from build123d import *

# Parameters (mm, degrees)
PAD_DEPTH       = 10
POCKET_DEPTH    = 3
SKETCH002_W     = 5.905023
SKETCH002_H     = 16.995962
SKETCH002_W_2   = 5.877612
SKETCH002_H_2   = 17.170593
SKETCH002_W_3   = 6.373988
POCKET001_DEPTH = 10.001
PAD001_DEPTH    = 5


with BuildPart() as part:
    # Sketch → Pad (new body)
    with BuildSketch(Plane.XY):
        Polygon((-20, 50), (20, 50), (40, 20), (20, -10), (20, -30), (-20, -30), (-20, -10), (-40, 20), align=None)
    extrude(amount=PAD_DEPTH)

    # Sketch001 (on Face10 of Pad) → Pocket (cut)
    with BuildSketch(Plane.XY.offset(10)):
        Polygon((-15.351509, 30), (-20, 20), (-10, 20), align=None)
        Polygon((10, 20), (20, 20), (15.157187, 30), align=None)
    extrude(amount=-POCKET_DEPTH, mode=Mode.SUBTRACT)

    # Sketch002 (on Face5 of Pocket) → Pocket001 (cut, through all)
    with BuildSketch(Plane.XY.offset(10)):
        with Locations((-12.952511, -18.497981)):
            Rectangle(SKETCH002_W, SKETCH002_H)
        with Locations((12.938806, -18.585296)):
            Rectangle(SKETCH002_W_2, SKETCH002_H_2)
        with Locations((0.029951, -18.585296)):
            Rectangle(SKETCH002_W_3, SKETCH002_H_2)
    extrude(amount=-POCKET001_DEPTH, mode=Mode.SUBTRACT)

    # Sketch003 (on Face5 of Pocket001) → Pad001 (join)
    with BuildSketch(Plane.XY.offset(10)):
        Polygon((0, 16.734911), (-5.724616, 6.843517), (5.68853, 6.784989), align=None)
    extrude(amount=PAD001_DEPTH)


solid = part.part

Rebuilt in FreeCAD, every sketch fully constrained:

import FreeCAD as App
import Part
import Sketcher

V = App.Vector
Q = App.Units.Quantity


def add_polygon(sketch, points):
    """Adds a closed chain of lines whose ends are joined by coincident constraints."""
    first, n = sketch.GeometryCount, len(points)
    for a, b in zip(points, points[1:] + points[:1]):
        sketch.addGeometry(Part.LineSegment(App.Vector(*a, 0), App.Vector(*b, 0)), False)
    for i in range(n):
        sketch.addConstraint(Sketcher.Constraint("Coincident", first + i, 2, first + (i + 1) % n, 1))

doc = App.newDocument("Part")
body = doc.addObject("PartDesign::Body", "Body")

sketch1 = doc.addObject("Sketcher::SketchObject", "Sketch")
body.addObject(sketch1)
sketch1.AttachmentSupport = (doc.XY_Plane, [""])
sketch1.MapMode = "FlatFace"
add_polygon(sketch1, [(20, 50), (-20, 50), (-40, 20), (-20, -10), (-20, -30), (20, -30), (20, -10), (40, 20)])
sketch1.addConstraint([
    Sketcher.Constraint("Horizontal", 0),
    Sketcher.Constraint("Vertical", 3),
    Sketcher.Constraint("Horizontal", 4),
    Sketcher.Constraint("Vertical", 5),
    Sketcher.Constraint("Symmetric", 2, 2, 5, 2, -2),
    Sketcher.Constraint("Symmetric", 1, 2, 6, 2, -2),
    Sketcher.Constraint("Parallel", 1, 6),
    Sketcher.Constraint("Parallel", 2, 7),
    Sketcher.Constraint("Vertical", 0, 2, 2, 2),
    Sketcher.Constraint("DistanceX", 0, 2, 0, 1, Q("40 mm")),
    Sketcher.Constraint("DistanceY", 3, 2, 3, 1, Q("20 mm")),
    Sketcher.Constraint("DistanceY", -1, 1, 0, 2, Q("50 mm")),
    Sketcher.Constraint("DistanceX", 1, 2, -1, 1, Q("40 mm")),
    Sketcher.Constraint("DistanceY", -1, 1, 1, 2, Q("20 mm")),
])
pad1 = doc.addObject("PartDesign::Pad", "Pad")
body.addObject(pad1)
pad1.Profile = sketch1
pad1.Length = 10

sketch2 = doc.addObject("Sketcher::SketchObject", "Sketch001")
body.addObject(sketch2)
sketch2.AttachmentSupport = (doc.XY_Plane, [""])
sketch2.MapMode = "FlatFace"
sketch2.AttachmentOffset = App.Placement(V(0, 0, 10), App.Rotation())
add_polygon(sketch2, [(-15, 30), (-20, 20), (-10, 20)])
add_polygon(sketch2, [(10, 20), (20, 20), (15, 30)])
sketch2.addConstraint([
    Sketcher.Constraint("Horizontal", 1),
    Sketcher.Constraint("Horizontal", 3),
    Sketcher.Constraint("Symmetric", 0, 2, 3, 2, -2),
    Sketcher.Constraint("Horizontal", 2, 2, 4, 2),
    Sketcher.Constraint("Equal", 1, 3),
    Sketcher.Constraint("DistanceX", 1, 1, 1, 2, Q("10 mm")),
    Sketcher.Constraint("DistanceX", 0, 2, -1, 1, Q("20 mm")),
    Sketcher.Constraint("DistanceY", -1, 1, 0, 2, Q("20 mm")),
    Sketcher.Constraint("DistanceY", -1, 1, 2, 2, Q("30 mm")),
    Sketcher.Constraint("DistanceX", 2, 2, -1, 1, Q("15.351509 mm")),
    Sketcher.Constraint("Distance", 4, Q("11.110933 mm")),
])
pocket1 = doc.addObject("PartDesign::Pocket", "Pocket")
body.addObject(pocket1)
pocket1.Profile = sketch2
pocket1.Length = 3

sketch3 = doc.addObject("Sketcher::SketchObject", "Sketch002")
body.addObject(sketch3)
sketch3.AttachmentSupport = (doc.XY_Plane, [""])
sketch3.MapMode = "FlatFace"
sketch3.AttachmentOffset = App.Placement(V(0, 0, 10), App.Rotation())
add_polygon(sketch3, [(-16, -10), (-16, -27), (-10, -27), (-10, -10)])
add_polygon(sketch3, [(10, -10), (10, -27), (16, -27), (16, -10)])
add_polygon(sketch3, [(-3, -10), (-3, -27), (3, -27), (3, -10)])
sketch3.addConstraint([
    Sketcher.Constraint("Vertical", 0),
    Sketcher.Constraint("Horizontal", 1),
    Sketcher.Constraint("Vertical", 2),
    Sketcher.Constraint("Horizontal", 3),
    Sketcher.Constraint("Vertical", 4),
    Sketcher.Constraint("Horizontal", 5),
    Sketcher.Constraint("Vertical", 6),
    Sketcher.Constraint("Horizontal", 7),
    Sketcher.Constraint("Vertical", 8),
    Sketcher.Constraint("Horizontal", 9),
    Sketcher.Constraint("Vertical", 10),
    Sketcher.Constraint("Horizontal", 11),
    Sketcher.Constraint("Symmetric", 2, 2, 7, 2, -2),
    Sketcher.Constraint("Horizontal", 5, 2, 8, 2),
    Sketcher.Constraint("Horizontal", 7, 2, 10, 2),
    Sketcher.Constraint("DistanceX", 1, 2, -1, 1, Q("9.999999 mm")),
    Sketcher.Constraint("DistanceY", 2, 2, -1, 1, Q("10 mm")),
    Sketcher.Constraint("DistanceX", 5, 1, 5, 2, Q("5.877612 mm")),
    Sketcher.Constraint("DistanceY", 0, 2, 0, 1, Q("16.995962 mm")),
    Sketcher.Constraint("DistanceX", 1, 1, 1, 2, Q("5.905023 mm")),
    Sketcher.Constraint("DistanceX", 9, 1, 9, 2, Q("6.373988 mm")),
    Sketcher.Constraint("DistanceY", 4, 2, 4, 1, Q("17.170593 mm")),
    Sketcher.Constraint("DistanceX", 0, 2, 8, 2, Q("12.747979 mm")),
])
pocket2 = doc.addObject("PartDesign::Pocket", "Pocket001")
body.addObject(pocket2)
pocket2.Profile = sketch3
pocket2.Type = "ThroughAll"

sketch4 = doc.addObject("Sketcher::SketchObject", "Sketch003")
body.addObject(sketch4)
sketch4.AttachmentSupport = (doc.XY_Plane, [""])
sketch4.MapMode = "FlatFace"
sketch4.AttachmentOffset = App.Placement(V(0, 0, 10), App.Rotation())
add_polygon(sketch4, [(0, 17), (-6, 7), (6, 7)])
sketch4.addConstraint([
    Sketcher.Constraint("PointOnObject", 2, 2, -2),
    Sketcher.Constraint("Angle", 0, Q("-120.05999 deg")),
    Sketcher.Constraint("DistanceX", -1, 1, 1, 2, Q("5.68853 mm")),
    Sketcher.Constraint("DistanceY", -1, 1, 1, 2, Q("6.784989 mm")),
    Sketcher.Constraint("DistanceY", -1, 1, 2, 2, Q("16.734911 mm")),
    Sketcher.Constraint("Distance", 0, Q("11.428513 mm")),
])
pad2 = doc.addObject("PartDesign::Pad", "Pad001")
body.addObject(pad2)
pad2.Profile = sketch4
pad2.Length = 5

doc.recompute()
